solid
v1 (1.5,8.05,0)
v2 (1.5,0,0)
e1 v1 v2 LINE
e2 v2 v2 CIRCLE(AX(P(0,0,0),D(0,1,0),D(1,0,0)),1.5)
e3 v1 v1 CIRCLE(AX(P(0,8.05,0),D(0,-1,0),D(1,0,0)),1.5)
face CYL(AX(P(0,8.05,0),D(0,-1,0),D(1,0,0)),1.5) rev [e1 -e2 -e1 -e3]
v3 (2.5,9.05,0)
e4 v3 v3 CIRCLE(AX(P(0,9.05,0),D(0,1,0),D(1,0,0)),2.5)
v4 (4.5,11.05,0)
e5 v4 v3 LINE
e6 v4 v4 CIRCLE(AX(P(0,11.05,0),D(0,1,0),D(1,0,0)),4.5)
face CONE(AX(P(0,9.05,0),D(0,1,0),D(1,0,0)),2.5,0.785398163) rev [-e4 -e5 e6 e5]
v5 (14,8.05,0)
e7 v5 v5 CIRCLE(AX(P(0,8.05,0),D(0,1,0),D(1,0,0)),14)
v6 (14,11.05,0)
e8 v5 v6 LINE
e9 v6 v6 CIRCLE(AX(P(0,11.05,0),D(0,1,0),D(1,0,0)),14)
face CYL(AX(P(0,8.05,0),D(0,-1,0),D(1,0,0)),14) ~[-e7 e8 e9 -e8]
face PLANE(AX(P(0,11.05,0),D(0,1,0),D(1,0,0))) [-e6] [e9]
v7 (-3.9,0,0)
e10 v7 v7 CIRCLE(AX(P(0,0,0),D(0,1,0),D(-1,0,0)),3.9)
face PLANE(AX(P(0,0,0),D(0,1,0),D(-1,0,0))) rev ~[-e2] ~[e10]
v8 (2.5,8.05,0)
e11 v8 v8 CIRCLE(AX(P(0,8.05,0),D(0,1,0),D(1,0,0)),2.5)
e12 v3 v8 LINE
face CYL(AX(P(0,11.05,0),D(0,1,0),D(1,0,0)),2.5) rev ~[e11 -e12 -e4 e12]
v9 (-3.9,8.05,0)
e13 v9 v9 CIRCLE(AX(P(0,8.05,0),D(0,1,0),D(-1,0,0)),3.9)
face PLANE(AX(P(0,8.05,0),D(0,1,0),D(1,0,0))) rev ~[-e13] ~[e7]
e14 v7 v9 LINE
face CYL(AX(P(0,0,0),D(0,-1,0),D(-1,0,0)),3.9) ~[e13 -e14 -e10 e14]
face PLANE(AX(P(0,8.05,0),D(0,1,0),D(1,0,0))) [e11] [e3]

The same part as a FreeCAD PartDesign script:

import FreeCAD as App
import Part
import Sketcher
from FreeCAD import Vector
Q = App.Units.Quantity


def edges_at(feature, points):
    """Names of the edges that pass closest to the given points."""
    edges = feature.Shape.Edges
    near = lambda p: min(range(len(edges)), key=lambda i: edges[i].distToShape(Part.Vertex(*p))[0])
    return sorted({f"Edge{near(p) + 1}" for p in points})

doc = App.newDocument("Part")
body = doc.addObject("PartDesign::Body", "Body")

sketch1 = body.newObject("Sketcher::SketchObject", "Sketch")
sketch1.AttachmentSupport = (doc.getObject("XZ_Plane"), [""])
sketch1.MapMode = "FlatFace"
sketch1.addGeometry(Part.Circle(Vector(0, 0, 0), Vector(0, 0, 1), 3.9), False)
sketch1.addConstraint(Sketcher.Constraint("Coincident", 0, 3, -1, 1))
sketch1.addConstraint(Sketcher.Constraint("Diameter", 0, Q("7.8 mm")))
pad1 = body.newObject("PartDesign::Pad", "Pad")
pad1.Profile = sketch1
pad1.Length = 8.05
pad1.Reversed = True

sketch2 = body.newObject("Sketcher::SketchObject", "Sketch001")
sketch2.AttachmentSupport = (doc.getObject("XZ_Plane"), [""])
sketch2.MapMode = "FlatFace"
sketch2.AttachmentOffset = App.Placement(Vector(0, 0, -8.05), App.Rotation())
sketch2.addGeometry(Part.Circle(Vector(0, 0, 0), Vector(0, 0, 1), 1.5), False)
sketch2.addConstraint(Sketcher.Constraint("Coincident", 0, 3, -1, 1))
sketch2.addConstraint(Sketcher.Constraint("Diameter", 0, Q("3 mm")))
pocket1 = body.newObject("PartDesign::Pocket", "Pocket")
pocket1.Profile = sketch2
pocket1.Length = 8.05
pocket1.Reversed = True

sketch3 = body.newObject("Sketcher::SketchObject", "Sketch002")
sketch3.AttachmentSupport = (doc.getObject("XZ_Plane"), [""])
sketch3.MapMode = "FlatFace"
sketch3.AttachmentOffset = App.Placement(Vector(0, 0, -8.05), App.Rotation())
sketch3.addGeometry(Part.Circle(Vector(0, 0, 0), Vector(0, 0, 1), 14), False)
sketch3.addGeometry(Part.Circle(Vector(0, 0, 0), Vector(0, 0, 1), 1.5), False)
sketch3.addConstraint(Sketcher.Constraint("Coincident", 0, 3, -1, 1))
sketch3.addConstraint(Sketcher.Constraint("Coincident", 1, 3, -1, 1))
sketch3.addConstraint(Sketcher.Constraint("Diameter", 0, Q("28 mm")))
sketch3.addConstraint(Sketcher.Constraint("Diameter", 1, Q("3 mm")))
pad2 = body.newObject("PartDesign::Pad", "Pad001")
pad2.Profile = sketch3
pad2.Length = 3
pad2.Reversed = True

sketch4 = body.newObject("Sketcher::SketchObject", "Sketch003")
sketch4.AttachmentSupport = (doc.getObject("XZ_Plane"), [""])
sketch4.MapMode = "FlatFace"
sketch4.AttachmentOffset = App.Placement(Vector(0, 0, -11.05), App.Rotation())
sketch4.addGeometry(Part.Circle(Vector(0, 0, 0), Vector(0, 0, 1), 2.5), False)
sketch4.addConstraint(Sketcher.Constraint("Coincident", 0, 3, -1, 1))
sketch4.addConstraint(Sketcher.Constraint("Diameter", 0, Q("5 mm")))
pocket2 = body.newObject("PartDesign::Pocket", "Pocket001")
pocket2.Profile = sketch4
pocket2.Length = 3
pocket2.Reversed = True
doc.recompute()

chamfer = body.newObject("PartDesign::Chamfer", "Chamfer")
chamfer.Base = (pocket2, edges_at(pocket2, [(-2.5, 11.05, 0)]))
chamfer.Size = 2

doc.recompute()
